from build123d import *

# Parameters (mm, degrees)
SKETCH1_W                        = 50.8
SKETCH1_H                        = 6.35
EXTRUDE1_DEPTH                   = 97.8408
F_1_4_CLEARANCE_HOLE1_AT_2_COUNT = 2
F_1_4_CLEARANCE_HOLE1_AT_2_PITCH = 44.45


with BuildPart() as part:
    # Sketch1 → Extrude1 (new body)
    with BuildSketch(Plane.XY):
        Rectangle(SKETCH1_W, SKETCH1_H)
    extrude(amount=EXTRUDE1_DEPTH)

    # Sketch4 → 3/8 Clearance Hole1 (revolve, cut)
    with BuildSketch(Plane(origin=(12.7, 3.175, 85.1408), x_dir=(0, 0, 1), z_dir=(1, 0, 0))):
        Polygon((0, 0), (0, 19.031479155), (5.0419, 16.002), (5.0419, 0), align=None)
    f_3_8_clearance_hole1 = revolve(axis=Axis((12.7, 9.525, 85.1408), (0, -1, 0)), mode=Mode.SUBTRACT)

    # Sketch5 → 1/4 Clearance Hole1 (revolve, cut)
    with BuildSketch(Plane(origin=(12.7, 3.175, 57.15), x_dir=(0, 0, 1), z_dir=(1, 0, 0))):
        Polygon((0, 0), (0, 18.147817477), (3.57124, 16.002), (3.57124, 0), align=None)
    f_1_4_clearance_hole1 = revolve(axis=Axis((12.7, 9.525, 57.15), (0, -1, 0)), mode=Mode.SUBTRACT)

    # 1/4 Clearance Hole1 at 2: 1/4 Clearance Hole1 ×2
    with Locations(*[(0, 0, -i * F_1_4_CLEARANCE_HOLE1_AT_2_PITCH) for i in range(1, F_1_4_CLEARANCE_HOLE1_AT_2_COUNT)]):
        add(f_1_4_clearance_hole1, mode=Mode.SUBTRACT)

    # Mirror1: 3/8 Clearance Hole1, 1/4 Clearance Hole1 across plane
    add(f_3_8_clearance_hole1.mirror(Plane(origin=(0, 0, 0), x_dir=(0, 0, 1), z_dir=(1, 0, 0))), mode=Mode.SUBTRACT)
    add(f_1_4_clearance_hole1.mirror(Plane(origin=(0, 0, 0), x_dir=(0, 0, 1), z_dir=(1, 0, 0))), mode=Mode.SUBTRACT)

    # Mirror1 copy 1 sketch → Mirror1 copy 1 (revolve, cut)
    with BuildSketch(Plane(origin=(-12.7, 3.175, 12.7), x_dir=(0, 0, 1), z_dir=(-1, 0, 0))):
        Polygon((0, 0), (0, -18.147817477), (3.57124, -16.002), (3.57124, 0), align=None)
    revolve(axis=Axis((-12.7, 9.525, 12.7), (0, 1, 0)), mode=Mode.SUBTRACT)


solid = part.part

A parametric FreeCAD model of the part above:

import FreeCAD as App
import Part
import Sketcher
Q = App.Units.Quantity

doc = App.newDocument("Part")
params = doc.addObject("Spreadsheet::Sheet", "Params")
for row, (alias, value) in enumerate([
    ("sketch1_width", "2 in"),
    ("sketch1_height", "0.25 in"),
    ("pad1_length", "3.852 in"),
    ("sketch2_width", "0.63 in"),
    ("groove_angle", "360 deg"),
    ("sketch3_width", "0.63 in"),
    ("groove2_angle", "360 deg"),
    ("linearpattern_pitch", "1.75 in"),
    ("sketch4_width", "0.63 in"),
    ("groove3_angle", "360 deg"),
], start=1):
    params.set(f"A{row}", alias)
    params.set(f"B{row}", "=" + value)
    params.setAlias(f"B{row}", alias)

body = doc.addObject("PartDesign::Body", "Body")

sketch1 = body.newObject("Sketcher::SketchObject", "Sketch")
sketch1.AttachmentSupport = (doc.getObject("XY_Plane"), [""])
sketch1.MapMode = "FlatFace"
sketch1.addGeometry([
    Part.LineSegment(App.Vector(-25, 3, 0), App.Vector(-25, -3, 0)),
    Part.LineSegment(App.Vector(-25, -3, 0), App.Vector(25, -3, 0)),
    Part.LineSegment(App.Vector(25, -3, 0), App.Vector(25, 3, 0)),
    Part.LineSegment(App.Vector(25, 3, 0), App.Vector(-25, 3, 0)),
], False)
sketch1.addConstraint([
    Sketcher.Constraint("Coincident", 0, 2, 1, 1),
    Sketcher.Constraint("Coincident", 1, 2, 2, 1),
    Sketcher.Constraint("Coincident", 2, 2, 3, 1),
    Sketcher.Constraint("Coincident", 3, 2, 0, 1),
    Sketcher.Constraint("Vertical", 0),
    Sketcher.Constraint("Horizontal", 1),
    Sketcher.Constraint("Vertical", 2),
    Sketcher.Constraint("Horizontal", 3),
    Sketcher.Constraint("Symmetric", 0, 2, 2, 2, -1, 1),
    Sketcher.Constraint("DistanceX", 1, 1, 1, 2, Q("2 in")),
    Sketcher.Constraint("DistanceY", 0, 2, 0, 1, Q("0.25 in")),
])
sketch1.setExpression("Constraints[9]", "Params.sketch1_width")
sketch1.setExpression("Constraints[10]", "Params.sketch1_height")
pad1 = body.newObject("PartDesign::Pad", "Pad")
pad1.Profile = sketch1
pad1.setExpression("Length", "Params.pad1_length")

sketch2 = body.newObject("Sketcher::SketchObject", "Sketch001")
sketch2.AttachmentSupport = (doc.getObject("YZ_Plane"), [""])
sketch2.MapMode = "FlatFace"
sketch2.AttachmentOffset = App.Placement(App.Vector(0, 0, 0.5 * 25.4), App.Rotation())
sketch2.addGeometry([
    Part.LineSegment(App.Vector(-16, 85, 0), App.Vector(3, 85, 0)),
    Part.LineSegment(App.Vector(3, 85, 0), App.Vector(3, 90, 0)),
    Part.LineSegment(App.Vector(3, 90, 0), App.Vector(-13, 90, 0)),
    Part.LineSegment(App.Vector(-13, 90, 0), App.Vector(-16, 85, 0)),
], False)
sketch2.addGeometry(Part.LineSegment(App.Vector(3, 85, 0), App.Vector(-16, 85, 0)), True)
sketch2.addConstraint([
    Sketcher.Constraint("Coincident", 0, 2, 1, 1),
    Sketcher.Constraint("Coincident", 1, 2, 2, 1),
    Sketcher.Constraint("Coincident", 2, 2, 3, 1),
    Sketcher.Constraint("Coincident", 3, 2, 0, 1),
    Sketcher.Constraint("Horizontal", 0),
    Sketcher.Constraint("Vertical", 1),
    Sketcher.Constraint("Horizontal", 2),
    Sketcher.Constraint("Horizontal", 4),
    Sketcher.Constraint("Coincident", 4, 1, 0, 2),
    Sketcher.Constraint("Equal", 0, 4),
    Sketcher.Constraint("Angle", 3, Q("-121 deg")),
    Sketcher.Constraint("DistanceX", 2, 2, 2, 1, Q("0.63 in")),
    Sketcher.Constraint("DistanceY", 1, 1, 1, 2, Q("0.1985 in")),
    Sketcher.Constraint("DistanceX", -1, 1, 0, 2, Q("0.125 in")),
    Sketcher.Constraint("DistanceY", -1, 1, 0, 2, Q("3.352 in")),
])
sketch2.setExpression("Constraints[11]", "Params.sketch2_width")
groove = body.newObject("PartDesign::Groove", "Groove")
groove.Profile = sketch2
groove.ReferenceAxis = (sketch2, ["Axis0"])
groove.setExpression("Angle", "Params.groove_angle")

sketch3 = body.newObject("Sketcher::SketchObject", "Sketch002")
sketch3.AttachmentSupport = (doc.getObject("YZ_Plane"), [""])
sketch3.MapMode = "FlatFace"
sketch3.AttachmentOffset = App.Placement(App.Vector(0, 0, 0.5 * 25.4), App.Rotation())
sketch3.addGeometry([
    Part.LineSegment(App.Vector(-15, 57.1, 0), App.Vector(3.2, 57.1, 0)),
    Part.LineSegment(App.Vector(3.2, 57.1, 0), App.Vector(3.2, 60.7, 0)),
    Part.LineSegment(App.Vector(3.2, 60.7, 0), App.Vector(-12.8, 60.7, 0)),
    Part.LineSegment(App.Vector(-12.8, 60.7, 0), App.Vector(-15, 57.1, 0)),
], False)
sketch3.addGeometry(Part.LineSegment(App.Vector(3.2, 57.1, 0), App.Vector(-15, 57.1, 0)), True)
sketch3.addConstraint([
    Sketcher.Constraint("Coincident", 0, 2, 1, 1),
    Sketcher.Constraint("Coincident", 1, 2, 2, 1),
    Sketcher.Constraint("Coincident", 2, 2, 3, 1),
    Sketcher.Constraint("Coincident", 3, 2, 0, 1),
    Sketcher.Constraint("Horizontal", 0),
    Sketcher.Constraint("Vertical", 1),
    Sketcher.Constraint("Horizontal", 2),
    Sketcher.Constraint("Horizontal", 4),
    Sketcher.Constraint("Coincident", 4, 1, 0, 2),
    Sketcher.Constraint("Equal", 0, 4),
    Sketcher.Constraint("Angle", 3, Q("-121 deg")),
    Sketcher.Constraint("DistanceX", 2, 2, 2, 1, Q("0.63 in")),
    Sketcher.Constraint("DistanceY", -1, 1, 0, 2, Q("2.25 in")),
    Sketcher.Constraint("DistanceY", 1, 1, 1, 2, Q("0.1406 in")),
    Sketcher.Constraint("DistanceX", -1, 1, 0, 2, Q("0.125 in")),
])
sketch3.setExpression("Constraints[11]", "Params.sketch3_width")
groove2 = body.newObject("PartDesign::Groove", "Groove001")
groove2.Profile = sketch3
groove2.ReferenceAxis = (sketch3, ["Axis0"])
groove2.setExpression("Angle", "Params.groove2_angle")
doc.recompute()

linearpattern = body.newObject("PartDesign::LinearPattern", "LinearPattern")
linearpattern.Originals = [groove2]
linearpattern.Direction = (doc.getObject("Z_Axis"), [""])
linearpattern.Mode = "offset"
linearpattern.setExpression("Offset", "Params.linearpattern_pitch")
linearpattern.Occurrences = 2
linearpattern.Reversed = True
body.Tip = linearpattern
doc.recompute()

mirrored = body.newObject("PartDesign::Mirrored", "Mirrored")
mirrored.Originals = [groove, groove2]
mirrored.MirrorPlane = (doc.getObject("YZ_Plane"), [""])
body.Tip = mirrored

sketch4 = body.newObject("Sketcher::SketchObject", "Sketch003")
sketch4.AttachmentSupport = (doc.getObject("YZ_Plane"), [""])
sketch4.MapMode = "FlatFace"
sketch4.AttachmentOffset = App.Placement(App.Vector(0, 0, -0.5 * 25.4), App.Rotation())
sketch4.addGeometry([
    Part.LineSegment(App.Vector(3.2, 12.7, 0), App.Vector(-15, 12.7, 0)),
    Part.LineSegment(App.Vector(-15, 12.7, 0), App.Vector(-12.8, 16.3, 0)),
    Part.LineSegment(App.Vector(-12.8, 16.3, 0), App.Vector(3.2, 16.3, 0)),
    Part.LineSegment(App.Vector(3.2, 16.3, 0), App.Vector(3.2, 12.7, 0)),
], False)
sketch4.addGeometry(Part.LineSegment(App.Vector(-15, 12.7, 0), App.Vector(3.2, 12.7, 0)), True)
sketch4.addConstraint([
    Sketcher.Constraint("Coincident", 0, 2, 1, 1),
    Sketcher.Constraint("Coincident", 1, 2, 2, 1),
    Sketcher.Constraint("Coincident", 2, 2, 3, 1),
    Sketcher.Constraint("Coincident", 3, 2, 0, 1),
    Sketcher.Constraint("Horizontal", 0),
    Sketcher.Constraint("Horizontal", 2),
    Sketcher.Constraint("Vertical", 3),
    Sketcher.Constraint("Horizontal", 4),
    Sketcher.Constraint("Coincident", 4, 1, 0, 2),
    Sketcher.Constraint("Vertical", 2, 2, 4, 2),
    Sketcher.Constraint("Angle", 1, Q("59 deg")),
    Sketcher.Constraint("DistanceX", 2, 1, 2, 2, Q("0.63 in")),
    Sketcher.Constraint("DistanceY", -1, 1, 0, 2, Q("0.5 in")),
    Sketcher.Constraint("DistanceY", 3, 2, 3, 1, Q("0.1406 in")),
    Sketcher.Constraint("DistanceX", 1, 2, -1, 1, Q("0.505 in")),
])
sketch4.setExpression("Constraints[11]", "Params.sketch4_width")
groove3 = body.newObject("PartDesign::Groove", "Groove002")
groove3.Profile = sketch4
groove3.ReferenceAxis = (sketch4, ["Axis0"])
groove3.setExpression("Angle", "Params.groove3_angle")

doc.recompute()
